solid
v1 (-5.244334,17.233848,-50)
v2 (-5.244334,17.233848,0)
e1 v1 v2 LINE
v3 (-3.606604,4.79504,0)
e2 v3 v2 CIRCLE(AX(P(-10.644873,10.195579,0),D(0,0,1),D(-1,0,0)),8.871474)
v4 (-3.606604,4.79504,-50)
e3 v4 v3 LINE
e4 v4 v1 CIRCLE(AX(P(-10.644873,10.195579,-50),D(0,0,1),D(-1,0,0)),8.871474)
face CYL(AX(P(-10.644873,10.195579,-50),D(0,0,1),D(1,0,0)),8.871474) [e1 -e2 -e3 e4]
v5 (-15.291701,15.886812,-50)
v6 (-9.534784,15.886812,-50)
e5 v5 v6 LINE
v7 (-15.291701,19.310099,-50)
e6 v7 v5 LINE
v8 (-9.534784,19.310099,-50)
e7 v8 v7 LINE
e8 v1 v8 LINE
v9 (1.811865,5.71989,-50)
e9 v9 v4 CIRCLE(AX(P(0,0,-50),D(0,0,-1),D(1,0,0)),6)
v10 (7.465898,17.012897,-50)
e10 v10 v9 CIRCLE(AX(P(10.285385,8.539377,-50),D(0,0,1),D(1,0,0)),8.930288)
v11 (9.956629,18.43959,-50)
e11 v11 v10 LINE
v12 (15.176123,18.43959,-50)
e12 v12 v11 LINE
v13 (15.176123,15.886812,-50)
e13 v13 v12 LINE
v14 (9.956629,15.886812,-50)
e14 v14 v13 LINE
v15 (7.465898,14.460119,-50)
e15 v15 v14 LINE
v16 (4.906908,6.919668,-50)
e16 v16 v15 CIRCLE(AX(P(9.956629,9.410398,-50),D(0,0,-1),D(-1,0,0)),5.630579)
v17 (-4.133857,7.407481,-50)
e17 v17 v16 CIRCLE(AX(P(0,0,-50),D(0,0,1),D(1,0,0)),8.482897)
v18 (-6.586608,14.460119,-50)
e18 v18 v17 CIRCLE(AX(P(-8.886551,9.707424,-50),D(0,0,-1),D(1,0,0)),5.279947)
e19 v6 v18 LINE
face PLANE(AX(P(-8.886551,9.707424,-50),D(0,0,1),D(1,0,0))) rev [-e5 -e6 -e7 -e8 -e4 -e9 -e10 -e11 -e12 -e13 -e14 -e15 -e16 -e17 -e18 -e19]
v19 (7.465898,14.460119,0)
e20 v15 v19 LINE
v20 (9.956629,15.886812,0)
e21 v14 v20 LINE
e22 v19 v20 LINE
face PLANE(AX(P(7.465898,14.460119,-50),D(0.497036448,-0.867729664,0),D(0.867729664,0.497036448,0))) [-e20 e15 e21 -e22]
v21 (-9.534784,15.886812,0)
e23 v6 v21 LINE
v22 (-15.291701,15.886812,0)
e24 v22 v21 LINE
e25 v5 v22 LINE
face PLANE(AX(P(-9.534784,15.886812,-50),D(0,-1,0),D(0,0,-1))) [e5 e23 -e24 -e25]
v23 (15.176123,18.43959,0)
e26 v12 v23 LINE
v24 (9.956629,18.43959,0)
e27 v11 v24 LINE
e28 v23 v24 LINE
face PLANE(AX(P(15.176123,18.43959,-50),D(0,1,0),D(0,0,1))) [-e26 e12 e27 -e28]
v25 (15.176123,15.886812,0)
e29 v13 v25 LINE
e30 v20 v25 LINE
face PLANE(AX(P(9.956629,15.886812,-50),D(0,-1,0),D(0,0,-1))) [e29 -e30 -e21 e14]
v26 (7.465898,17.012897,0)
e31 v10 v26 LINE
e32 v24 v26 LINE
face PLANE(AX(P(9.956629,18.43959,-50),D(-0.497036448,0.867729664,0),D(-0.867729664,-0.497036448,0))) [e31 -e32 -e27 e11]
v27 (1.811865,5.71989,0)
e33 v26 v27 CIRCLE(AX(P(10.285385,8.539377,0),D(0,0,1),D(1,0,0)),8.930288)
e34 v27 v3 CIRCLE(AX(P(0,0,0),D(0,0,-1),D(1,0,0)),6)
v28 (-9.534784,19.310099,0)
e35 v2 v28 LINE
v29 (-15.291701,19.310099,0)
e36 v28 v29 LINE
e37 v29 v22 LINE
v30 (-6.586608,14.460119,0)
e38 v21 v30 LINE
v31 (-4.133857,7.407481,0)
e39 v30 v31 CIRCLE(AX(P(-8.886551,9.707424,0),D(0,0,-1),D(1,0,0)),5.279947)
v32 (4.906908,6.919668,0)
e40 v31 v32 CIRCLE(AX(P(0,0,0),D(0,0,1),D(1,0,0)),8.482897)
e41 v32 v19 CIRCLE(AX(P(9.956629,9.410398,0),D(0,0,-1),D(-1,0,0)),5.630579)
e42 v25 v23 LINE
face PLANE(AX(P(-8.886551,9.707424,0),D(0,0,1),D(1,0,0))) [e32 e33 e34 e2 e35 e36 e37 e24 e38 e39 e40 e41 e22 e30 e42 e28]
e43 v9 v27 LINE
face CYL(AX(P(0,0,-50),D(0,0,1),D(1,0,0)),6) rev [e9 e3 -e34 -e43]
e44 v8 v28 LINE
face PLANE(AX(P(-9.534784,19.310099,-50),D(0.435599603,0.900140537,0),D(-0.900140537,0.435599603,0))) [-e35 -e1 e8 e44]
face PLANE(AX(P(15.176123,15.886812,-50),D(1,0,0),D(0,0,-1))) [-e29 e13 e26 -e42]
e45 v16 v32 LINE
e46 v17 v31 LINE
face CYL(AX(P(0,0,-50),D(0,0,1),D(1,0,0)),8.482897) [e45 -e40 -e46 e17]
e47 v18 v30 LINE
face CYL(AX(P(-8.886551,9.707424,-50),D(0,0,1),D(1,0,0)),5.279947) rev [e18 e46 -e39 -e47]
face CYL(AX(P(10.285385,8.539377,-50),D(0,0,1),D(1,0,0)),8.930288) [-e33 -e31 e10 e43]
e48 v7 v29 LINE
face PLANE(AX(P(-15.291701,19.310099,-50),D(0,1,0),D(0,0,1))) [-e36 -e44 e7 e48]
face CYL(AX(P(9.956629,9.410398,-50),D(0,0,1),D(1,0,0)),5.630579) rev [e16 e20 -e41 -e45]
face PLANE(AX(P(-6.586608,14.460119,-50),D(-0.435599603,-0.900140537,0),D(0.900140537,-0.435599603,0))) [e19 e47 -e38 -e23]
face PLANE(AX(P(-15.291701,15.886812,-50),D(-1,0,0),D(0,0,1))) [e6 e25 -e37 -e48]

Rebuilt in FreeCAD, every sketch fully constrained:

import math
import FreeCAD as App
import Part
import Sketcher

doc = App.newDocument("Part")
body = doc.addObject("PartDesign::Body", "Body")

sketch1 = doc.addObject("Sketcher::SketchObject", "Sketch")
body.addObject(sketch1)
sketch1.AttachmentSupport = (doc.XY_Plane, [""])
sketch1.MapMode = "FlatFace"
sketch1.addGeometry(Part.LineSegment(App.Vector(-9.5, 15.9, 0), App.Vector(-6.6, 14.5, 0)), False)
sketch1.addGeometry(Part.ArcOfCircle(Part.Circle(App.Vector(-8.9, 9.7, 0), App.Vector(0, 0, 1), 5.3), math.radians(-26), math.radians(64)), False)
sketch1.addGeometry(Part.ArcOfCircle(Part.Circle(App.Vector(0, 0, 0), App.Vector(0, 0, 1), 8.5), math.radians(119), math.radians(415)), False)
sketch1.addGeometry(Part.ArcOfCircle(Part.Circle(App.Vector(10, 9.4, 0), App.Vector(0, 0, 1), 5.6), math.radians(116), math.radians(206)), False)
sketch1.addGeometry(Part.LineSegment(App.Vector(7.5, 14.5, 0), App.Vector(10, 15.9, 0)), False)
sketch1.addGeometry(Part.LineSegment(App.Vector(10, 15.9, 0), App.Vector(15.2, 15.9, 0)), False)
sketch1.addGeometry(Part.LineSegment(App.Vector(15.2, 15.9, 0), App.Vector(15.2, 18.4, 0)), False)
sketch1.addGeometry(Part.LineSegment(App.Vector(15.2, 18.4, 0), App.Vector(10, 18.4, 0)), False)
sketch1.addGeometry(Part.LineSegment(App.Vector(10, 18.4, 0), App.Vector(7.5, 17, 0)), False)
sketch1.addGeometry(Part.ArcOfCircle(Part.Circle(App.Vector(10.3, 8.5, 0), App.Vector(0, 0, 1), 8.9), math.radians(108), math.radians(198)), False)
sketch1.addGeometry(Part.ArcOfCircle(Part.Circle(App.Vector(0, 0, 0), App.Vector(0, 0, 1), 6), math.radians(127), math.radians(432)), False)
sketch1.addGeometry(Part.ArcOfCircle(Part.Circle(App.Vector(-10.6, 10.2, 0), App.Vector(0, 0, 1), 8.9), math.radians(-37), math.radians(53)), False)
sketch1.addGeometry(Part.LineSegment(App.Vector(-5.2, 17.2, 0), App.Vector(-9.5, 19.3, 0)), False)
sketch1.addGeometry(Part.LineSegment(App.Vector(-9.5, 19.3, 0), App.Vector(-15.3, 19.3, 0)), False)
sketch1.addGeometry(Part.LineSegment(App.Vector(-15.3, 19.3, 0), App.Vector(-15.3, 15.9, 0)), False)
sketch1.addGeometry(Part.LineSegment(App.Vector(-15.3, 15.9, 0), App.Vector(-9.5, 15.9, 0)), False)
sketch1.addConstraint(Sketcher.Constraint("Tangent", 0, 2, 1, 2))
sketch1.addConstraint(Sketcher.Constraint("Coincident", 1, 1, 2, 1))
sketch1.addConstraint(Sketcher.Constraint("Coincident", 2, 2, 3, 2))
sketch1.addConstraint(Sketcher.Constraint("Coincident", 3, 1, 4, 1))
sketch1.addConstraint(Sketcher.Constraint("Coincident", 4, 2, 5, 1))
sketch1.addConstraint(Sketcher.Constraint("Coincident", 5, 2, 6, 1))
sketch1.addConstraint(Sketcher.Constraint("Coincident", 6, 2, 7, 1))
sketch1.addConstraint(Sketcher.Constraint("Coincident", 7, 2, 8, 1))
sketch1.addConstraint(Sketcher.Constraint("Coincident", 8, 2, 9, 1))
sketch1.addConstraint(Sketcher.Constraint("Coincident", 9, 2, 10, 2))
sketch1.addConstraint(Sketcher.Constraint("Coincident", 10, 1, 11, 1))
sketch1.addConstraint(Sketcher.Constraint("Coincident", 11, 2, 12, 1))
sketch1.addConstraint(Sketcher.Constraint("Coincident", 12, 2, 13, 1))
sketch1.addConstraint(Sketcher.Constraint("Coincident", 13, 2, 14, 1))
sketch1.addConstraint(Sketcher.Constraint("Coincident", 14, 2, 15, 1))
sketch1.addConstraint(Sketcher.Constraint("Coincident", 15, 2, 0, 1))
sketch1.addConstraint(Sketcher.Constraint("Horizontal", 5))
sketch1.addConstraint(Sketcher.Constraint("Vertical", 6))
sketch1.addConstraint(Sketcher.Constraint("Horizontal", 7))
sketch1.addConstraint(Sketcher.Constraint("Horizontal", 13))
sketch1.addConstraint(Sketcher.Constraint("Vertical", 14))
sketch1.addConstraint(Sketcher.Constraint("Horizontal", 15))
sketch1.addConstraint(Sketcher.Constraint("Coincident", 2, 3, -1, 1))
sketch1.addConstraint(Sketcher.Constraint("Coincident", 10, 3, -1, 1))
sketch1.addConstraint(Sketcher.Constraint("Parallel", 4, 8))
sketch1.addConstraint(Sketcher.Constraint("Parallel", 0, 12))
sketch1.addConstraint(Sketcher.Constraint("Horizontal", 0, 2, 3, 1))
sketch1.addConstraint(Sketcher.Constraint("Horizontal", 5, 2, 14, 2))
sketch1.addConstraint(Sketcher.Constraint("Vertical", 3, 3, 4, 2))
sketch1.addConstraint(Sketcher.Constraint("Vertical", 4, 2, 7, 2))
sketch1.addConstraint(Sketcher.Constraint("Vertical", 3, 1, 8, 2))
sketch1.addConstraint(Sketcher.Constraint("Vertical", 12, 2, 15, 2))
sketch1.addConstraint(Sketcher.Constraint("Radius", 10, 6.0))
sketch1.addConstraint(Sketcher.Constraint("Radius", 3, 5.630579))
sketch1.addConstraint(Sketcher.Constraint("Radius", 9, 8.930288))
sketch1.addConstraint(Sketcher.Constraint("Radius", 1, 5.279947))
sketch1.addConstraint(Sketcher.Constraint("Radius", 2, 8.482897))
sketch1.addConstraint(Sketcher.Constraint("Radius", 11, 8.871474))
sketch1.addConstraint(Sketcher.Constraint("Distance", 4, 2.870399))
sketch1.addConstraint(Sketcher.Constraint("DistanceY", -1, 1, 3, 3, 9.410398))
sketch1.addConstraint(Sketcher.Constraint("DistanceX", -1, 1, 3, 1, 7.465898))
sketch1.addConstraint(Sketcher.Constraint("DistanceY", -1, 1, 12, 2, 19.310099))
sketch1.addConstraint(Sketcher.Constraint("DistanceX", 13, 2, -1, 1, 15.291701))
sketch1.addConstraint(Sketcher.Constraint("DistanceX", 11, 3, 3, 3, 20.601502))
sketch1.addConstraint(Sketcher.Constraint("DistanceY", 9, 3, 11, 3, 1.656202))
sketch1.addConstraint(Sketcher.Constraint("Distance", 0, 3.27524))
sketch1.addConstraint(Sketcher.Constraint("DistanceX", 5, 1, 5, 2, 5.219494))
sketch1.addConstraint(Sketcher.Constraint("DistanceX", 13, 2, 13, 1, 5.756917))
sketch1.addConstraint(Sketcher.Constraint("DistanceY", 6, 1, 6, 2, 2.552778))
sketch1.addConstraint(Sketcher.Constraint("DistanceY", 14, 2, 14, 1, 3.423287))
sketch1.addConstraint(Sketcher.Constraint("DistanceY", -1, 1, 11, 3, 10.195579))
pad1 = doc.addObject("PartDesign::Pad", "Pad")
body.addObject(pad1)
pad1.Profile = sketch1
pad1.Length = 50
pad1.Reversed = True

doc.recompute()
